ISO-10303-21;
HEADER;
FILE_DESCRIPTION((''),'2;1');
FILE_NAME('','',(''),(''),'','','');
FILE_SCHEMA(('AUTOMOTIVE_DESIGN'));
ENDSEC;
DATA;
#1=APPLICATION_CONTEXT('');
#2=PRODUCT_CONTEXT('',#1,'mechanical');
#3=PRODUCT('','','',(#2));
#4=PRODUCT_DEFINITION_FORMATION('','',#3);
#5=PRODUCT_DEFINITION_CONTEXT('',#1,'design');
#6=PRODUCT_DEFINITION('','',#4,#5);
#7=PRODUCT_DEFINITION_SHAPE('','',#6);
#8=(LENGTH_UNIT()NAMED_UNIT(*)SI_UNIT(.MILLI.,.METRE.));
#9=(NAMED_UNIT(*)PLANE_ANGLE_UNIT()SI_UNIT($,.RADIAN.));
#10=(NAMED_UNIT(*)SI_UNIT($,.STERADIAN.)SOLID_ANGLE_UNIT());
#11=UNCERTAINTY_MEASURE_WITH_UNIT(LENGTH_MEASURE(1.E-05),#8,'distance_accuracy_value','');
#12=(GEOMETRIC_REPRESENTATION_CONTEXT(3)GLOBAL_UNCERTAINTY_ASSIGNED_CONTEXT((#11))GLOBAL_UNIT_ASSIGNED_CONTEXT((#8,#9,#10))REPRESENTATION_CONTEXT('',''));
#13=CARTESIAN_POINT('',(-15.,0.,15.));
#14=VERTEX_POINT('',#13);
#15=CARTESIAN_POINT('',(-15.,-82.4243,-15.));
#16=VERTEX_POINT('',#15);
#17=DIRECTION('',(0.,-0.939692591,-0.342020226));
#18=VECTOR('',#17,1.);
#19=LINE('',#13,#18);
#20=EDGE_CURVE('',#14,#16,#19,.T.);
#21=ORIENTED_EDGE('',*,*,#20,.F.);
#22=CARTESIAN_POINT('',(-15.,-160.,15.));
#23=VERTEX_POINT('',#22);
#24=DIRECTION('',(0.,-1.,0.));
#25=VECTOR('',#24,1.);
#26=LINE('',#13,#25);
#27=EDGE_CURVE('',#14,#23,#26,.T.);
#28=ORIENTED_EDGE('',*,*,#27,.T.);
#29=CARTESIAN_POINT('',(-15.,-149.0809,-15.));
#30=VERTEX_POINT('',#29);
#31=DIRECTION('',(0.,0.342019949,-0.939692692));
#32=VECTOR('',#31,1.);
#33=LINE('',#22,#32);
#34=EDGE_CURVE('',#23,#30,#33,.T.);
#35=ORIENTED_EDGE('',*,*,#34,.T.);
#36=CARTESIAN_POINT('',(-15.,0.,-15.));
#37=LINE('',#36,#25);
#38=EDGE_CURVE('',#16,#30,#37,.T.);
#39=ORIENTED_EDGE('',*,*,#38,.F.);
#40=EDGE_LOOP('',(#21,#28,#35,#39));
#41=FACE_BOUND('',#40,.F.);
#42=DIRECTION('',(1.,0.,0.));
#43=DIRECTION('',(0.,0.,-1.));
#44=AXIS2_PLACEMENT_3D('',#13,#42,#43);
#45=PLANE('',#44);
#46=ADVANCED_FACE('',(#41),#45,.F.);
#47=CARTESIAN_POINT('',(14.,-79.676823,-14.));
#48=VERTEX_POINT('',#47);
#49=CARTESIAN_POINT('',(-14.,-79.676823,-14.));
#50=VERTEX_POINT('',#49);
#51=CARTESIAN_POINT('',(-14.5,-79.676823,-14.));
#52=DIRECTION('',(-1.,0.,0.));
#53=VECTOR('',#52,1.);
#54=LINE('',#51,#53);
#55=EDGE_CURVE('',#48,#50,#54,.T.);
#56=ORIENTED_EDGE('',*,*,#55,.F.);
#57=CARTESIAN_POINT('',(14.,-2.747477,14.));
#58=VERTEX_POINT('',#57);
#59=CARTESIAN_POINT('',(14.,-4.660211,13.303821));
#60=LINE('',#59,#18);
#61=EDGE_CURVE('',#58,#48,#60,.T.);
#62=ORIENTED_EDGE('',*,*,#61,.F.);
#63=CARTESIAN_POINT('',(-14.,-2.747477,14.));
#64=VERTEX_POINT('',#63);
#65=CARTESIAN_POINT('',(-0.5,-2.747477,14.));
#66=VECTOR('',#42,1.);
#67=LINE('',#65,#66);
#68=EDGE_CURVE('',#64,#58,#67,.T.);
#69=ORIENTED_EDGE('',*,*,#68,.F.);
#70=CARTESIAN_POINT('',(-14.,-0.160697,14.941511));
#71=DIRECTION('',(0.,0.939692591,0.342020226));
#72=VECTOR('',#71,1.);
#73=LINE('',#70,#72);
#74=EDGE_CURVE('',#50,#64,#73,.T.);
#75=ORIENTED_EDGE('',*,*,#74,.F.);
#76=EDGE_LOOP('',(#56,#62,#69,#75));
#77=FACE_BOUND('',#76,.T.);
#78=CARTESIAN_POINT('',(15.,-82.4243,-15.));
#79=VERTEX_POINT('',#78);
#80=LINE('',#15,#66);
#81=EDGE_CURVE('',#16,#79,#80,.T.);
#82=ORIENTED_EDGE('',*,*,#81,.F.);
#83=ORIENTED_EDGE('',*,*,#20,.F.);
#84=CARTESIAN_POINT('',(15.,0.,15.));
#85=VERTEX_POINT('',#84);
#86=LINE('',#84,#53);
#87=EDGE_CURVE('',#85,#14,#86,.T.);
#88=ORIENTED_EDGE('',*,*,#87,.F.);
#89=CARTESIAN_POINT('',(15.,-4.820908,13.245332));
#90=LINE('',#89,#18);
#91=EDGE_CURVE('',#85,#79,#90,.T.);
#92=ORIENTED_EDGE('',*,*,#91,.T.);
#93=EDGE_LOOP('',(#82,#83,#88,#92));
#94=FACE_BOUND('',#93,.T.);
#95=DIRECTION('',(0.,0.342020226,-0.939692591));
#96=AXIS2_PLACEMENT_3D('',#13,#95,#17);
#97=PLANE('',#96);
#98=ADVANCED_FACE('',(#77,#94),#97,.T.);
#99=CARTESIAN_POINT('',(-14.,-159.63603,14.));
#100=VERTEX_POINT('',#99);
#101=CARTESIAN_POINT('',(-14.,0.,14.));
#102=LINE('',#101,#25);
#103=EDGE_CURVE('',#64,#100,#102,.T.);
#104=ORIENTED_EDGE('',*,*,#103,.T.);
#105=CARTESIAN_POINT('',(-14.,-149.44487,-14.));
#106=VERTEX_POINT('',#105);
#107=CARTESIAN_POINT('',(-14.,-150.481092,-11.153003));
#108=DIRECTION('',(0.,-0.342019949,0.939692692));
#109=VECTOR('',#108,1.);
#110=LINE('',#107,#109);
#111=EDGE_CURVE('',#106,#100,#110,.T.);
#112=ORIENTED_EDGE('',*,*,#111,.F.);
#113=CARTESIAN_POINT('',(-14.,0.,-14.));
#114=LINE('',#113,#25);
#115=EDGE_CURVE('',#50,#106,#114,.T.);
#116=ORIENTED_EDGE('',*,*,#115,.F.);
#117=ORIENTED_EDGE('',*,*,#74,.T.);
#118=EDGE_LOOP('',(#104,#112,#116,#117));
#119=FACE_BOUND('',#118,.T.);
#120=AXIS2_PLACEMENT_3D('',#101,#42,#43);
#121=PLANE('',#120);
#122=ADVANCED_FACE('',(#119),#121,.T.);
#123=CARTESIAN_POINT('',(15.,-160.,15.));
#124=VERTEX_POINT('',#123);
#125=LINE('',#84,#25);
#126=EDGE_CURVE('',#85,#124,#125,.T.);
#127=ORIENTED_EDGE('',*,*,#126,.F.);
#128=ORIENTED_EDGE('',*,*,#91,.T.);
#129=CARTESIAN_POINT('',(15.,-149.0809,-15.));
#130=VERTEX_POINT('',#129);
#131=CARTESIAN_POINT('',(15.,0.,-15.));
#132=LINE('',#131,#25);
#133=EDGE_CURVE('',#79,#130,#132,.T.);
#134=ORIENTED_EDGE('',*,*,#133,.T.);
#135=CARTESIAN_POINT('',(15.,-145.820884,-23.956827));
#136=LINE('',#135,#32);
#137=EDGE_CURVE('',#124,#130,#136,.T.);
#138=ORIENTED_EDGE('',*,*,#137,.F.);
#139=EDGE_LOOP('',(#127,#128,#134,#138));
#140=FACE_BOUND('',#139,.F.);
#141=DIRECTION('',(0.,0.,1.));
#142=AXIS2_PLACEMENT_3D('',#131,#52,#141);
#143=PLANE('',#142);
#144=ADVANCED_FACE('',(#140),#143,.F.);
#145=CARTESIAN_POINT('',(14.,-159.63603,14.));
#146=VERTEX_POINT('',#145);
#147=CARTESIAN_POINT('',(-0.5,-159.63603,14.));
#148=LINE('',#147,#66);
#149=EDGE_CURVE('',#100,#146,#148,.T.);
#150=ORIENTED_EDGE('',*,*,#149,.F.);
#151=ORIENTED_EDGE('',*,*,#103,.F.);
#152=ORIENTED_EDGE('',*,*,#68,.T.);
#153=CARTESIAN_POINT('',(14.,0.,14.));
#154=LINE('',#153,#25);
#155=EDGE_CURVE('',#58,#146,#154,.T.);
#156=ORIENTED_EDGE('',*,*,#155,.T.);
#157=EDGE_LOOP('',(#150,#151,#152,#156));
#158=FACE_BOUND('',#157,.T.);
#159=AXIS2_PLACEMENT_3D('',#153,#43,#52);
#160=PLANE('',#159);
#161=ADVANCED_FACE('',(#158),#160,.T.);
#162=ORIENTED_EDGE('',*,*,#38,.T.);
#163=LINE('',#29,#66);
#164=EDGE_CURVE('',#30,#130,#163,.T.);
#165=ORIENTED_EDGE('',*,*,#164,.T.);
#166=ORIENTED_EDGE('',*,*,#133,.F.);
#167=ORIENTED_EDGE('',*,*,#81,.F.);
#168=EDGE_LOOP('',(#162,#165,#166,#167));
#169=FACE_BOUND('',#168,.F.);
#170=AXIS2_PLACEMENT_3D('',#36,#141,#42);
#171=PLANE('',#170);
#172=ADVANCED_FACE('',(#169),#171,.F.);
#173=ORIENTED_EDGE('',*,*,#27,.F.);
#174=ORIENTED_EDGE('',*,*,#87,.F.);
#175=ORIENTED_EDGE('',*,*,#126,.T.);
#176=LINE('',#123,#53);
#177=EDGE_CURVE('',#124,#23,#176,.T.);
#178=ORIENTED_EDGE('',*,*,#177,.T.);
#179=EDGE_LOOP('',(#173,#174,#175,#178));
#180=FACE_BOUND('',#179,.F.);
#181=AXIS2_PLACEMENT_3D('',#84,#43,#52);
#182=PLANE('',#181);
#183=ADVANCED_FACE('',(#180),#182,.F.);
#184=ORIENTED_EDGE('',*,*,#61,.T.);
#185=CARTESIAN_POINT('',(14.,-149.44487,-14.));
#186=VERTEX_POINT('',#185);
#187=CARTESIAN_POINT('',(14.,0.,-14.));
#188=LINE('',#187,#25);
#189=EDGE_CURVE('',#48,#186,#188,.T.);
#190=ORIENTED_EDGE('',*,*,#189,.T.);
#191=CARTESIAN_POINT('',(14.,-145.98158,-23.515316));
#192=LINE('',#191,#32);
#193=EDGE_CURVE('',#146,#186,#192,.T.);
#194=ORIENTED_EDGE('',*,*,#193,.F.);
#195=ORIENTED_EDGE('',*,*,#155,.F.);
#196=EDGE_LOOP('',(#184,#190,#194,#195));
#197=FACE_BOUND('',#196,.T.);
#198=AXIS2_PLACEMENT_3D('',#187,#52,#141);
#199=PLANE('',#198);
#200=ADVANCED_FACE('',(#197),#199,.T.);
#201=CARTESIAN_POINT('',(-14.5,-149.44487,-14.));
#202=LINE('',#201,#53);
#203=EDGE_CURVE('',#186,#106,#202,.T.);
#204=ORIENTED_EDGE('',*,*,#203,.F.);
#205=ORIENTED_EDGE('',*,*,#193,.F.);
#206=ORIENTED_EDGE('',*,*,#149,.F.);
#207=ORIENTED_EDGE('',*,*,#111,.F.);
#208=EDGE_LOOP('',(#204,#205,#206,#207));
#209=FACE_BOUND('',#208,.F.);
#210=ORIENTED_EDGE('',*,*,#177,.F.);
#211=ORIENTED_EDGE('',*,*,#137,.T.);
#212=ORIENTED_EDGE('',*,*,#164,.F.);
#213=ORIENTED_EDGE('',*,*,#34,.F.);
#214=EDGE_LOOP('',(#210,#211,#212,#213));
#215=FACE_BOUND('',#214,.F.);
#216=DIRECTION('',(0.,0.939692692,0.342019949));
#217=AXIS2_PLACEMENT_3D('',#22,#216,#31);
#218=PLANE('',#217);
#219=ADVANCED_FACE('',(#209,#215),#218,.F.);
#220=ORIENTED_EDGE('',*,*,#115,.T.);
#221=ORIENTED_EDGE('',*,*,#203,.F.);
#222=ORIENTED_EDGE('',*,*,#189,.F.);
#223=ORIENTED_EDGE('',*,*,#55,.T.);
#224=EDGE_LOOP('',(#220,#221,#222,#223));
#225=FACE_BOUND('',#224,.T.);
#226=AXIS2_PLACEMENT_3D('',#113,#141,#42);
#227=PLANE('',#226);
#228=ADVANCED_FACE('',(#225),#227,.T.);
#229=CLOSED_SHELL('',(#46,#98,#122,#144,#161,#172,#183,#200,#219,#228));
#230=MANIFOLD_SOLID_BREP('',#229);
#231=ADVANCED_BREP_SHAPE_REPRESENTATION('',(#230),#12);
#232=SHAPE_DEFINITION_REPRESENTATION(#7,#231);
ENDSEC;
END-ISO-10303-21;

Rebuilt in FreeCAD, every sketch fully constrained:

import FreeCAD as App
import Part
import Sketcher
Q = App.Units.Quantity

doc = App.newDocument("Part")
params = doc.addObject("Spreadsheet::Sheet", "Params")
for row, (alias, value) in enumerate([
    ("sketch1_width", "30 mm"),
    ("sketch1_width2", "28 mm"),
    ("pad1_length", "160 mm"),
    ("sketch2_height", "30 mm"),
    ("pocket1_length", "853.4319 mm"),
    ("sketch3_height", "30 mm"),
    ("pocket2_length", "51.9593 mm"),
], start=1):
    params.set(f"A{row}", alias)
    params.set(f"B{row}", "=" + value)
    params.setAlias(f"B{row}", alias)

body = doc.addObject("PartDesign::Body", "Body")

sketch1 = body.newObject("Sketcher::SketchObject", "Sketch")
sketch1.AttachmentSupport = (doc.getObject("XZ_Plane"), [""])
sketch1.MapMode = "FlatFace"
sketch1.addGeometry([
    Part.LineSegment(App.Vector(15, 15, 0), App.Vector(-15, 15, 0)),
    Part.LineSegment(App.Vector(-15, 15, 0), App.Vector(-15, -15, 0)),
    Part.LineSegment(App.Vector(-15, -15, 0), App.Vector(15, -15, 0)),
    Part.LineSegment(App.Vector(15, -15, 0), App.Vector(15, 15, 0)),
    Part.LineSegment(App.Vector(-14, -14, 0), App.Vector(-14, 14, 0)),
    Part.LineSegment(App.Vector(-14, 14, 0), App.Vector(14, 14, 0)),
    Part.LineSegment(App.Vector(14, 14, 0), App.Vector(14, -14, 0)),
    Part.LineSegment(App.Vector(14, -14, 0), App.Vector(-14, -14, 0)),
], False)
sketch1.addConstraint([
    Sketcher.Constraint("Coincident", 0, 2, 1, 1),
    Sketcher.Constraint("Coincident", 1, 2, 2, 1),
    Sketcher.Constraint("Coincident", 2, 2, 3, 1),
    Sketcher.Constraint("Coincident", 3, 2, 0, 1),
    Sketcher.Constraint("Coincident", 4, 2, 5, 1),
    Sketcher.Constraint("Coincident", 5, 2, 6, 1),
    Sketcher.Constraint("Coincident", 6, 2, 7, 1),
    Sketcher.Constraint("Coincident", 7, 2, 4, 1),
    Sketcher.Constraint("Horizontal", 0),
    Sketcher.Constraint("Vertical", 1),
    Sketcher.Constraint("Horizontal", 2),
    Sketcher.Constraint("Vertical", 3),
    Sketcher.Constraint("Vertical", 4),
    Sketcher.Constraint("Horizontal", 5),
    Sketcher.Constraint("Vertical", 6),
    Sketcher.Constraint("Horizontal", 7),
    Sketcher.Constraint("Symmetric", 0, 2, 2, 2, -1, 1),
    Sketcher.Constraint("Symmetric", 4, 2, 6, 2, -1, 1),
    Sketcher.Constraint("Equal", 2, 1),
    Sketcher.Constraint("Equal", 7, 4),
    Sketcher.Constraint("DistanceX", 0, 2, 0, 1, Q("30 mm")),
    Sketcher.Constraint("DistanceX", 5, 1, 5, 2, Q("28 mm")),
])
sketch1.setExpression("Constraints[20]", "Params.sketch1_width")
sketch1.setExpression("Constraints[21]", "Params.sketch1_width2")
pad1 = body.newObject("PartDesign::Pad", "Pad")
pad1.Profile = sketch1
pad1.setExpression("Length", "Params.pad1_length")

sketch2 = body.newObject("Sketcher::SketchObject", "Sketch001")
sketch2.AttachmentSupport = (doc.getObject("YZ_Plane"), [""])
sketch2.MapMode = "FlatFace"
sketch2.AttachmentOffset = App.Placement(App.Vector(0, 0, -15), App.Rotation())
sketch2.addGeometry([
    Part.LineSegment(App.Vector(-82.4243, -15, 0), App.Vector(0, 15, 0)),
    Part.LineSegment(App.Vector(0, 15, 0), App.Vector(0, -15, 0)),
    Part.LineSegment(App.Vector(0, -15, 0), App.Vector(-82.4243, -15, 0)),
], False)
sketch2.addConstraint([
    Sketcher.Constraint("Coincident", 0, 2, 1, 1),
    Sketcher.Constraint("Coincident", 1, 2, 2, 1),
    Sketcher.Constraint("Coincident", 2, 2, 0, 1),
    Sketcher.Constraint("Vertical", 1),
    Sketcher.Constraint("Horizontal", 2),
    Sketcher.Constraint("Symmetric", 0, 2, 1, 2, -1, 1),
    Sketcher.Constraint("DistanceY", 1, 2, 1, 1, Q("30 mm")),
    Sketcher.Constraint("Angle", 0, Q("20 deg")),
])
sketch2.setExpression("Constraints[6]", "Params.sketch2_height")
pocket1 = body.newObject("PartDesign::Pocket", "Pocket")
pocket1.Profile = sketch2
pocket1.setExpression("Length", "Params.pocket1_length")
pocket1.Reversed = True

sketch3 = body.newObject("Sketcher::SketchObject", "Sketch002")
sketch3.AttachmentSupport = (doc.getObject("YZ_Plane"), [""])
sketch3.MapMode = "FlatFace"
sketch3.AttachmentOffset = App.Placement(App.Vector(0, 0, -15), App.Rotation())
sketch3.addGeometry([
    Part.LineSegment(App.Vector(-160, -15, 0), App.Vector(-160, 15, 0)),
    Part.LineSegment(App.Vector(-160, 15, 0), App.Vector(-149.0809, -15, 0)),
    Part.LineSegment(App.Vector(-149.0809, -15, 0), App.Vector(-160, -15, 0)),
], False)
sketch3.addConstraint([
    Sketcher.Constraint("Coincident", 0, 2, 1, 1),
    Sketcher.Constraint("Coincident", 1, 2, 2, 1),
    Sketcher.Constraint("Coincident", 2, 2, 0, 1),
    Sketcher.Constraint("Vertical", 0),
    Sketcher.Constraint("Horizontal", 2),
    Sketcher.Constraint("DistanceY", 0, 1, 0, 2, Q("30 mm")),
    Sketcher.Constraint("Angle", 1, Q("-70 deg")),
    Sketcher.Constraint("DistanceX", 0, 2, -1, 1, Q("160 mm")),
    Sketcher.Constraint("DistanceY", -1, 1, 0, 2, Q("15 mm")),
])
sketch3.setExpression("Constraints[5]", "Params.sketch3_height")
pocket2 = body.newObject("PartDesign::Pocket", "Pocket001")
pocket2.Profile = sketch3
pocket2.setExpression("Length", "Params.pocket2_length")
pocket2.Reversed = True

doc.recompute()
